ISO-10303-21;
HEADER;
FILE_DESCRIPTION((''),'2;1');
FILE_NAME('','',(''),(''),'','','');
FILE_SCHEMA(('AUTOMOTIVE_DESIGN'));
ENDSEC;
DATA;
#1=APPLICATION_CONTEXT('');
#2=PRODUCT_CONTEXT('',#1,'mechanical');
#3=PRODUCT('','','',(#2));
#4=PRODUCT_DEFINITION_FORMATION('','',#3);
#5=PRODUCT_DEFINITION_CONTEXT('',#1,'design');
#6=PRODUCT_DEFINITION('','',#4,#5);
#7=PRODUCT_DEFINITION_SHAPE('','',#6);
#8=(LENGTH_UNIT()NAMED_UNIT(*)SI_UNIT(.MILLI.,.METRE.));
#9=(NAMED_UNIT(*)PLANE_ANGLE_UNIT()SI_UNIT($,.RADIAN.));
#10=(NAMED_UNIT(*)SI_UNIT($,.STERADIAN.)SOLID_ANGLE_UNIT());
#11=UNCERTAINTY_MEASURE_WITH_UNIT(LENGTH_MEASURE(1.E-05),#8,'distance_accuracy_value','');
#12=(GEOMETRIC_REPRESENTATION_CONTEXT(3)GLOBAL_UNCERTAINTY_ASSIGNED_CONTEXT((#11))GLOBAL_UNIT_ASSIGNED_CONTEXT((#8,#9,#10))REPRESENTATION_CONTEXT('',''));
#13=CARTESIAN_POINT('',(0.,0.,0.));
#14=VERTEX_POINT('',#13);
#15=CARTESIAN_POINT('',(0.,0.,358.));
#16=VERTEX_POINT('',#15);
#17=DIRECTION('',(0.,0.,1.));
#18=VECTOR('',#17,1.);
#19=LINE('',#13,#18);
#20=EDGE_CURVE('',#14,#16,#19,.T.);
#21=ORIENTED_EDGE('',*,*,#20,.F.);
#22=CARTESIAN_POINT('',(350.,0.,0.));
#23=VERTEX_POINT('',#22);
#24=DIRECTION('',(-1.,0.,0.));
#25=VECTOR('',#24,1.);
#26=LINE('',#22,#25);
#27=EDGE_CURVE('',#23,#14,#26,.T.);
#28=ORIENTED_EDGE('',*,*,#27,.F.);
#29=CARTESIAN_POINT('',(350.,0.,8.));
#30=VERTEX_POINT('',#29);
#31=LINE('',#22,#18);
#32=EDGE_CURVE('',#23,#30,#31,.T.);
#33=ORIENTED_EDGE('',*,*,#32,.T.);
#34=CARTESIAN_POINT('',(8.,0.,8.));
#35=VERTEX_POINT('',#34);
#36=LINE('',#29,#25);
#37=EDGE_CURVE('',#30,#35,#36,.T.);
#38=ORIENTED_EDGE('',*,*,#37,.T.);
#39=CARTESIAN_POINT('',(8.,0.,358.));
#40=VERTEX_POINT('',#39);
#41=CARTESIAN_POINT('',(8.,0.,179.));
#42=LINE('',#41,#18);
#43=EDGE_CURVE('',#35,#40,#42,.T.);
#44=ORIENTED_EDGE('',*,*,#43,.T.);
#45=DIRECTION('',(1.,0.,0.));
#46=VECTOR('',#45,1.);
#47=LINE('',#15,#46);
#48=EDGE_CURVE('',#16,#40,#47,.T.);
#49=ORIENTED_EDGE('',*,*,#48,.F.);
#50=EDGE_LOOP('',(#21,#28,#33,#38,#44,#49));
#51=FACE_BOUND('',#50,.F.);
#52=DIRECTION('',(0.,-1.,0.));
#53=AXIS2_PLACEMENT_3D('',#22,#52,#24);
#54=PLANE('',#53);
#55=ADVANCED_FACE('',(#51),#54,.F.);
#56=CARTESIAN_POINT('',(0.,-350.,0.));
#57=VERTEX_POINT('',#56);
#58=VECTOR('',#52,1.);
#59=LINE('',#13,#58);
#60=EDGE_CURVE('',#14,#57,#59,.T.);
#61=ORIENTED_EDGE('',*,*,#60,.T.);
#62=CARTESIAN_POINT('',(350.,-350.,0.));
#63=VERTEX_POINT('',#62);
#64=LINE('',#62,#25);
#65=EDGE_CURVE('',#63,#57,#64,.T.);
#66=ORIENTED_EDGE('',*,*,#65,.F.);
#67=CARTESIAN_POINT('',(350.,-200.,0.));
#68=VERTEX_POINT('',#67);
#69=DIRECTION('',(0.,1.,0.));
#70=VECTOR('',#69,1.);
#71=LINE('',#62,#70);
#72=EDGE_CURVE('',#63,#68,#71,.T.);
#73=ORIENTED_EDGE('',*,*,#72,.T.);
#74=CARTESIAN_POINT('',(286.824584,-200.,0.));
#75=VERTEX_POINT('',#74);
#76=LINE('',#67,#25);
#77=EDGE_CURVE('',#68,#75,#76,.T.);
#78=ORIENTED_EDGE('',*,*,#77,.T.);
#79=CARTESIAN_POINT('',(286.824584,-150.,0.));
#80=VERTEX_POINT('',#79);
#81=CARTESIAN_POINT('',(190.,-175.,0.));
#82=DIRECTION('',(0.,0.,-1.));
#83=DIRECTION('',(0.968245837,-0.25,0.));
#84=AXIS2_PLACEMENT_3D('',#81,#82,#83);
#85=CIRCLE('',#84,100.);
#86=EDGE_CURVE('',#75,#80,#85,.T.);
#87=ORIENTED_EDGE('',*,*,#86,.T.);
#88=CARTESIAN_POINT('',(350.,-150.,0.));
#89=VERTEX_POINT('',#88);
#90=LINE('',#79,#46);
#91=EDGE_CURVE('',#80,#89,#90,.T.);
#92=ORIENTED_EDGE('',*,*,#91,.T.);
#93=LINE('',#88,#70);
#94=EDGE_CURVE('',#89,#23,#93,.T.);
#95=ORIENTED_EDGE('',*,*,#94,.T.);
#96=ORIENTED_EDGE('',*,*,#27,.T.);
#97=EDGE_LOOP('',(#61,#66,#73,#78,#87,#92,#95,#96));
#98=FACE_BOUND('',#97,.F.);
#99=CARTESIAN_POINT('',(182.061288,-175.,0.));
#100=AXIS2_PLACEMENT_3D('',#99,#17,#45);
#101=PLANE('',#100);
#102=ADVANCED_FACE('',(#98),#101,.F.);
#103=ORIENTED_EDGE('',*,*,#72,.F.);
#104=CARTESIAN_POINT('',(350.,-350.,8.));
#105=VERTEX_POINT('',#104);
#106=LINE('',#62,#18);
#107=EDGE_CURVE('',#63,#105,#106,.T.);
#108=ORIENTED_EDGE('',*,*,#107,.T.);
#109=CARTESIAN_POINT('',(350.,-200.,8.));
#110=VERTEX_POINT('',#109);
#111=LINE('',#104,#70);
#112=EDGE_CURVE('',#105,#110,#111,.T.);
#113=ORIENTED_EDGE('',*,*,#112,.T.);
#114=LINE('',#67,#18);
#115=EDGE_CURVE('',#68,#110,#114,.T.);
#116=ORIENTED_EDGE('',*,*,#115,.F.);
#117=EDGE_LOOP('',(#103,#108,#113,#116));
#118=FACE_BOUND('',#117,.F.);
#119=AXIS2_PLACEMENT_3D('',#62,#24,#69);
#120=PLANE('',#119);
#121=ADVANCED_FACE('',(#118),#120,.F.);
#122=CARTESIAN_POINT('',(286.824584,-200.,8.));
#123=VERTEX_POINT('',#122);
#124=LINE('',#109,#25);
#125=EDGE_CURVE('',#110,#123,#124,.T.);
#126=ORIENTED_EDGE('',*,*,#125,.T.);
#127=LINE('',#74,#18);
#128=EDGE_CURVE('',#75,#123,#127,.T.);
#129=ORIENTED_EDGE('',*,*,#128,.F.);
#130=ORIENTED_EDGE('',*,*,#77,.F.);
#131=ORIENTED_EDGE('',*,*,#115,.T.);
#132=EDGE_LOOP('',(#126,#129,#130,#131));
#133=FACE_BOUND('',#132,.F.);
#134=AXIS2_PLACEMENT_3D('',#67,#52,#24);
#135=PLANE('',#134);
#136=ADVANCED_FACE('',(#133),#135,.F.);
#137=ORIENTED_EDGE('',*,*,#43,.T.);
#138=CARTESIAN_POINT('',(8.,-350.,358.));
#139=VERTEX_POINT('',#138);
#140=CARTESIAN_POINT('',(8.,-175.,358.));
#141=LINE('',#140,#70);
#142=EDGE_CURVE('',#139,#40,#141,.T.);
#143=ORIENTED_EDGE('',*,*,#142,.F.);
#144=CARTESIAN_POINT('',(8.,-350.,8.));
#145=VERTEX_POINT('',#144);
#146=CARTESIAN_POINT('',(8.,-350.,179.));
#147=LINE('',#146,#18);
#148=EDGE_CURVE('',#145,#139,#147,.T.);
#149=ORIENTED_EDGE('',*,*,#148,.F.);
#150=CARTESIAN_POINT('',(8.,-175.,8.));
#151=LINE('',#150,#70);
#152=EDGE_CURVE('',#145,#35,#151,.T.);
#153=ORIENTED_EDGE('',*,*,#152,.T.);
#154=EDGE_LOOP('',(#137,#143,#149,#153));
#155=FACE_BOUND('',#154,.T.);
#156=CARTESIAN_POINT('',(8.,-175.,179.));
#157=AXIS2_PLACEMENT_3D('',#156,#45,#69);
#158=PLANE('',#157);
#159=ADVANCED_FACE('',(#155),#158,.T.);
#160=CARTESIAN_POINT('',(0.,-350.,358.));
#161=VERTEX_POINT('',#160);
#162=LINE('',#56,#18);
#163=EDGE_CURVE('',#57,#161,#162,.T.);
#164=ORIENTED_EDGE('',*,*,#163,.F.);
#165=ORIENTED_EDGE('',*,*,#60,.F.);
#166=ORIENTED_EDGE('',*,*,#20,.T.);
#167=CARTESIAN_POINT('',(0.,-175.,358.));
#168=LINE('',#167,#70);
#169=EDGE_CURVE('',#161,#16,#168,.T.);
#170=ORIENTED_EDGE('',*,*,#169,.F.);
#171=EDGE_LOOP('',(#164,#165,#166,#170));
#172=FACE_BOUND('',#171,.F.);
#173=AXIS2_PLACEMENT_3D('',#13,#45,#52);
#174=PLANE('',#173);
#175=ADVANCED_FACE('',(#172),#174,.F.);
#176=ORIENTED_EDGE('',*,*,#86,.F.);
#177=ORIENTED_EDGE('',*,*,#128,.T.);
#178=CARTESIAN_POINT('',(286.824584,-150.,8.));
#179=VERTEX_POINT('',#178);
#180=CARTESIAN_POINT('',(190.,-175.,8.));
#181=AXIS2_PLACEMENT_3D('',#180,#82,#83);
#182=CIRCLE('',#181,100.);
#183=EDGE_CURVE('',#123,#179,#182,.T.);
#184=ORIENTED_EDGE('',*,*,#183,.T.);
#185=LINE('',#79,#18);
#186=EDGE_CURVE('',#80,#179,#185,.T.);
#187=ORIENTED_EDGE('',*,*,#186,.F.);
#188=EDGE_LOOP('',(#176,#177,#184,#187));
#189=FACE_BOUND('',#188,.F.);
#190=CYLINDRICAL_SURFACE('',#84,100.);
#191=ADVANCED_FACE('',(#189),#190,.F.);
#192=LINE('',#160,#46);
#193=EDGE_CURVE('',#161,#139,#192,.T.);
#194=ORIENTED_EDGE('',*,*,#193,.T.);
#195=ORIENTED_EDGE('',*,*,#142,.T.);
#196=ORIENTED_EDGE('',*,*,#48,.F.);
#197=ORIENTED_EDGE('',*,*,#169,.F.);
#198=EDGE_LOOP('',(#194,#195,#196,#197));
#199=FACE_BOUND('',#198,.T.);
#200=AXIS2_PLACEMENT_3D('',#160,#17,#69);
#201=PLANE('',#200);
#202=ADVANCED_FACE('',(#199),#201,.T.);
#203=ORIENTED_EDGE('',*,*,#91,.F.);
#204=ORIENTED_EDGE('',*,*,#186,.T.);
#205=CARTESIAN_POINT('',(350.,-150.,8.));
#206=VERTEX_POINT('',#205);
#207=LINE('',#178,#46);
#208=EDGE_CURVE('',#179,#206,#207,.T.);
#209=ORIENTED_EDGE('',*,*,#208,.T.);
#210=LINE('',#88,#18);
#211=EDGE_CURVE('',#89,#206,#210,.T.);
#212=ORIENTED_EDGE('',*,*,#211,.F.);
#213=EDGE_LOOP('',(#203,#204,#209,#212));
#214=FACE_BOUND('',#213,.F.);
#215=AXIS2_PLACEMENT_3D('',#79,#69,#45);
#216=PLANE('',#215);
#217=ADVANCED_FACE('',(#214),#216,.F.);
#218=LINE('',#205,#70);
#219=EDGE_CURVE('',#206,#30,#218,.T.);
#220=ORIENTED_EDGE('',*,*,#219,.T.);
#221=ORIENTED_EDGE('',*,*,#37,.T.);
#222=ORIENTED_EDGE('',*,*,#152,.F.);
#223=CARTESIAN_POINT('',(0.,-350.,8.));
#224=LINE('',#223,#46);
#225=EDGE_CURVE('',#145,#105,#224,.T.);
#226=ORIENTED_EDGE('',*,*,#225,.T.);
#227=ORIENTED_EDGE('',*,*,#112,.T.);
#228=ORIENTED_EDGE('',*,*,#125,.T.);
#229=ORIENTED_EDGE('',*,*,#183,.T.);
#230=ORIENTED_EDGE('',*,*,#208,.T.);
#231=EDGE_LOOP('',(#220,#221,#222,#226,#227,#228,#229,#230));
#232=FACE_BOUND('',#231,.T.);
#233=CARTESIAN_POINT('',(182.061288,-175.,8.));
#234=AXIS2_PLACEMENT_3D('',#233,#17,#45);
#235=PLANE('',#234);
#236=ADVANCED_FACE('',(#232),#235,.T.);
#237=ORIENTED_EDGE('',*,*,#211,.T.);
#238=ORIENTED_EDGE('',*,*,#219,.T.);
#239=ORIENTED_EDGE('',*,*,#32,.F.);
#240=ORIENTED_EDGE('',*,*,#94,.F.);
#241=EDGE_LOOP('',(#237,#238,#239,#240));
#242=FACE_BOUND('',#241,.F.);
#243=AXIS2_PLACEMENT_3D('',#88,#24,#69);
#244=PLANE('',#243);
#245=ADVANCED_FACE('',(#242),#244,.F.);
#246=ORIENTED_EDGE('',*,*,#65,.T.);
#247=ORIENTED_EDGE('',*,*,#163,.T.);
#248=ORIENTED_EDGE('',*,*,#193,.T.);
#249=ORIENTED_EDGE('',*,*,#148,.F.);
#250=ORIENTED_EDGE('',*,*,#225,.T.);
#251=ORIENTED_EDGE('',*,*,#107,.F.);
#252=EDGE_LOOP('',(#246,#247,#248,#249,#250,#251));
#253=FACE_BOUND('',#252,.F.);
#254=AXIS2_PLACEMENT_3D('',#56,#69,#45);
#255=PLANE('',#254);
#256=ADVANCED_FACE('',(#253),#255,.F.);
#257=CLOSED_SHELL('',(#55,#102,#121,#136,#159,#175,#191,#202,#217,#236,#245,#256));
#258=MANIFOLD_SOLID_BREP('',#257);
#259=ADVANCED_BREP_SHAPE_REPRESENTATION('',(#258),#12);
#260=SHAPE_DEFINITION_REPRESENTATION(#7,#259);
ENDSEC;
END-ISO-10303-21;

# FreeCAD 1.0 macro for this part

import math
import FreeCAD as App
import Part
import Sketcher
from FreeCAD import Vector
Q = App.Units.Quantity

doc = App.newDocument("Part")
params = doc.addObject("Spreadsheet::Sheet", "Params")
for row, (alias, value) in enumerate([
    ("sketch1_radius", "100 mm"),
    ("sketch1_width", "350 mm"),
    ("sketch1_height", "150 mm"),
    ("pad1_length", "8 mm"),
    ("sketch2_width", "350 mm"),
    ("sketch2_height", "358 mm"),
    ("pad2_length", "8 mm"),
], start=1):
    params.set(f"A{row}", alias)
    params.set(f"B{row}", "=" + value)
    params.setAlias(f"B{row}", alias)

body = doc.addObject("PartDesign::Body", "Body")

# Sketch on XY plane
sketch1 = body.newObject("Sketcher::SketchObject", "Sketch")
sketch1.AttachmentSupport = (doc.getObject("XY_Plane"), [""])
sketch1.MapMode = "FlatFace"
sketch1.addGeometry([
    Part.LineSegment(Vector(350, 0, 0), Vector(0, 0, 0)),  # 0
    Part.LineSegment(Vector(0, 0, 0), Vector(0, -350, 0)),  # 1
    Part.LineSegment(Vector(0, -350, 0), Vector(350, -350, 0)),  # 2
    Part.LineSegment(Vector(350, -350, 0), Vector(350, -200, 0)),  # 3
    Part.LineSegment(Vector(350, -200, 0), Vector(287, -200, 0)),  # 4
    Part.ArcOfCircle(Part.Circle(Vector(190, -175, 0), Vector(0, 0, 1), 100), math.radians(14), math.radians(346)),  # 5
    Part.LineSegment(Vector(287, -150, 0), Vector(350, -150, 0)),  # 6
    Part.LineSegment(Vector(350, -150, 0), Vector(350, 0, 0)),  # 7
], False)
sketch1.addConstraint([
    Sketcher.Constraint("Coincident", 0, 2, 1, 1),
    Sketcher.Constraint("Coincident", 1, 2, 2, 1),
    Sketcher.Constraint("Coincident", 2, 2, 3, 1),
    Sketcher.Constraint("Coincident", 3, 2, 4, 1),
    Sketcher.Constraint("Coincident", 4, 2, 5, 2),
    Sketcher.Constraint("Coincident", 5, 1, 6, 1),
    Sketcher.Constraint("Coincident", 6, 2, 7, 1),
    Sketcher.Constraint("Coincident", 7, 2, 0, 1),
    Sketcher.Constraint("Horizontal", 0),
    Sketcher.Constraint("Vertical", 1),
    Sketcher.Constraint("Horizontal", 2),
    Sketcher.Constraint("Vertical", 3),
    Sketcher.Constraint("Horizontal", 4),
    Sketcher.Constraint("Horizontal", 6),
    Sketcher.Constraint("Vertical", 7),
    Sketcher.Constraint("Coincident", 0, 2, -1, 1),
    Sketcher.Constraint("Vertical", 4, 2, 5, 1),
    Sketcher.Constraint("Vertical", 3, 2, 6, 2),
    Sketcher.Constraint("Equal", 2, 1),
    Sketcher.Constraint("Equal", 3, 7),
    Sketcher.Constraint("Radius", 5, Q("100 mm")),
    Sketcher.Constraint("DistanceX", 0, 2, 0, 1, Q("350 mm")),
    Sketcher.Constraint("DistanceY", 3, 1, 3, 2, Q("150 mm")),
    Sketcher.Constraint("DistanceX", -1, 1, 5, 3, Q("190 mm")),
])
sketch1.setExpression("Constraints[20]", "Params.sketch1_radius")
sketch1.setExpression("Constraints[21]", "Params.sketch1_width")
sketch1.setExpression("Constraints[22]", "Params.sketch1_height")
pad1 = body.newObject("PartDesign::Pad", "Pad")
pad1.Profile = sketch1
pad1.setExpression("Length", "Params.pad1_length")

# Sketch on YZ plane
sketch2 = body.newObject("Sketcher::SketchObject", "Sketch001")
sketch2.AttachmentSupport = (doc.getObject("YZ_Plane"), [""])
sketch2.MapMode = "FlatFace"
sketch2.addGeometry([
    Part.LineSegment(Vector(-350, 358, 0), Vector(-350, 0, 0)),
    Part.LineSegment(Vector(-350, 0, 0), Vector(0, 0, 0)),
    Part.LineSegment(Vector(0, 0, 0), Vector(0, 358, 0)),
    Part.LineSegment(Vector(0, 358, 0), Vector(-350, 358, 0)),
], False)
sketch2.addConstraint([
    Sketcher.Constraint("Coincident", 0, 2, 1, 1),
    Sketcher.Constraint("Coincident", 1, 2, 2, 1),
    Sketcher.Constraint("Coincident", 2, 2, 3, 1),
    Sketcher.Constraint("Coincident", 3, 2, 0, 1),
    Sketcher.Constraint("Vertical", 0),
    Sketcher.Constraint("Horizontal", 1),
    Sketcher.Constraint("Vertical", 2),
    Sketcher.Constraint("Horizontal", 3),
    Sketcher.Constraint("Coincident", 1, 2, -1, 1),
    Sketcher.Constraint("DistanceX", 1, 1, 1, 2, Q("350 mm")),
    Sketcher.Constraint("DistanceY", 0, 2, 0, 1, Q("358 mm")),
])
sketch2.setExpression("Constraints[9]", "Params.sketch2_width")
sketch2.setExpression("Constraints[10]", "Params.sketch2_height")
pad2 = body.newObject("PartDesign::Pad", "Pad001")
pad2.Profile = sketch2
pad2.setExpression("Length", "Params.pad2_length")

doc.recompute()
